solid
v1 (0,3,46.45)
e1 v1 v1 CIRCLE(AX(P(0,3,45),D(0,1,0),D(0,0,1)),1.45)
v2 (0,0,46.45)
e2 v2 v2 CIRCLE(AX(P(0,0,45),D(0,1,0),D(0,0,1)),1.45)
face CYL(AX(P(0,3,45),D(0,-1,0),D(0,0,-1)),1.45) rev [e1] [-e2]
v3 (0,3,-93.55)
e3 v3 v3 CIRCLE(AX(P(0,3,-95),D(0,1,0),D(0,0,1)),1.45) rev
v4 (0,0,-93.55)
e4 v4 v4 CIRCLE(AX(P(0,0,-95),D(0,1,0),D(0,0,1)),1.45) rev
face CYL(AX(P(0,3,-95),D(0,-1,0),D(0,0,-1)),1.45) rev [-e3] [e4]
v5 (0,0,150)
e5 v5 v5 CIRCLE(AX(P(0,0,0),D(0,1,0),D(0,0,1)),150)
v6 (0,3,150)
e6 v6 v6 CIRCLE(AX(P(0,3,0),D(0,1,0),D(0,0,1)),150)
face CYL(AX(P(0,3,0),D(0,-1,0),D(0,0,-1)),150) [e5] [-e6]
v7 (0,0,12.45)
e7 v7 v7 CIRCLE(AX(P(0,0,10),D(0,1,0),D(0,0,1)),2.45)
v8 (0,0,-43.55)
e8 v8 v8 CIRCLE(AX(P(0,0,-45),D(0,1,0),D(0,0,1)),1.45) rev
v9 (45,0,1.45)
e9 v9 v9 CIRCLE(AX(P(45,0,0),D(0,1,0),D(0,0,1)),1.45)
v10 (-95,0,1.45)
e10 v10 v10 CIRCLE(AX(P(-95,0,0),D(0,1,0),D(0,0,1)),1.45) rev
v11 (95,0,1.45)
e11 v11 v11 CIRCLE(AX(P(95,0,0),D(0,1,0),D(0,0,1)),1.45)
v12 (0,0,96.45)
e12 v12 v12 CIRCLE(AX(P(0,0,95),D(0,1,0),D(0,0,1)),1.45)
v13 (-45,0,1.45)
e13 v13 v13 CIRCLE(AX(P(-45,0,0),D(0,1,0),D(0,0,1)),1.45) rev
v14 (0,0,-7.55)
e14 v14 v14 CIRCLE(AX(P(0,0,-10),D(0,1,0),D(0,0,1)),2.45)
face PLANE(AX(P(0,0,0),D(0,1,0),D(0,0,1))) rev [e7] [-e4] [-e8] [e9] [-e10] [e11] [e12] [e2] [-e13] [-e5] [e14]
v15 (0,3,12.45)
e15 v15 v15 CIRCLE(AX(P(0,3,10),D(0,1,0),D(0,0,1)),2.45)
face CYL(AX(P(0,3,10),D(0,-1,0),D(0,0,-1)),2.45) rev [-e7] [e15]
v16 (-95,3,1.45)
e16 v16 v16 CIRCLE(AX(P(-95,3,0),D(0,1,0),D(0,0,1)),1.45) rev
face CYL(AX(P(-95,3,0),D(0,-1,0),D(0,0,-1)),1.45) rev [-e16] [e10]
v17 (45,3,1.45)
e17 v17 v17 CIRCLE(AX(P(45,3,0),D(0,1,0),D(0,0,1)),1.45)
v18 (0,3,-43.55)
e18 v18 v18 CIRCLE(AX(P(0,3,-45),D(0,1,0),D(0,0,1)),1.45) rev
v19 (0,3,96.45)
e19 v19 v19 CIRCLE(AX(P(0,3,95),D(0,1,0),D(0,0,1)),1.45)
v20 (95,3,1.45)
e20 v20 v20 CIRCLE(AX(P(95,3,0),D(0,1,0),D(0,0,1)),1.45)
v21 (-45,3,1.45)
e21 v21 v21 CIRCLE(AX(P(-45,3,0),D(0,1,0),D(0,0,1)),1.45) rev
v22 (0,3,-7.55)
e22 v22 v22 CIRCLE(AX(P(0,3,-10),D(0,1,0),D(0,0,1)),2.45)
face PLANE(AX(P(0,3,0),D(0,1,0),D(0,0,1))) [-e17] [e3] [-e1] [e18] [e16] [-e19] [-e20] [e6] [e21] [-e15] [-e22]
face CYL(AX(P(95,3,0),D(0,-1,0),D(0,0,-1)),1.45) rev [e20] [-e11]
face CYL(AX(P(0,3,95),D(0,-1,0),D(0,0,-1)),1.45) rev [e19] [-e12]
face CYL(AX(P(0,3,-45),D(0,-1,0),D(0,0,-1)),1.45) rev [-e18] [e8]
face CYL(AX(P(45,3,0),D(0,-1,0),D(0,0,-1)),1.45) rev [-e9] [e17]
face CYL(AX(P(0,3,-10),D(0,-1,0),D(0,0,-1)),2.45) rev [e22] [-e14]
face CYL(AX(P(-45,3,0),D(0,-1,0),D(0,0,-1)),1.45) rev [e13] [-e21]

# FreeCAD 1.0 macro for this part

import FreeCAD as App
import Part
import Sketcher
from FreeCAD import Vector
Q = App.Units.Quantity

doc = App.newDocument("Part")
body = doc.addObject("PartDesign::Body", "Body")

sketch1 = doc.addObject("Sketcher::SketchObject", "Sketch")
body.addObject(sketch1)
sketch1.AttachmentSupport = (doc.XZ_Plane, [""])
sketch1.MapMode = "FlatFace"
sketch1.addGeometry(Part.Circle(Vector(0, 0, 0), Vector(0, 0, 1), 150), False)
sketch1.addGeometry(Part.Circle(Vector(0, -95, 0), Vector(0, 0, 1), 1.45), False)
sketch1.addGeometry(Part.Circle(Vector(0, -45, 0), Vector(0, 0, 1), 1.45), False)
sketch1.addGeometry(Part.Circle(Vector(-95, 0, 0), Vector(0, 0, 1), 1.45), False)
sketch1.addGeometry(Part.Circle(Vector(-45, 0, 0), Vector(0, 0, 1), 1.45), False)
sketch1.addGeometry(Part.Circle(Vector(0, -10, 0), Vector(0, 0, 1), 2.45), False)
sketch1.addGeometry(Part.Circle(Vector(45, 0, 0), Vector(0, 0, 1), 1.45), False)
sketch1.addGeometry(Part.Circle(Vector(95, 0, 0), Vector(0, 0, 1), 1.45), False)
sketch1.addGeometry(Part.Circle(Vector(0, 10, 0), Vector(0, 0, 1), 2.45), False)
sketch1.addGeometry(Part.Circle(Vector(0, 45, 0), Vector(0, 0, 1), 1.45), False)
sketch1.addGeometry(Part.Circle(Vector(0, 95, 0), Vector(0, 0, 1), 1.45), False)
sketch1.addConstraint(Sketcher.Constraint("Coincident", 0, 3, -1, 1))
sketch1.addConstraint(Sketcher.Constraint("Equal", 1, 2))
sketch1.addConstraint(Sketcher.Constraint("Equal", 2, 3))
sketch1.addConstraint(Sketcher.Constraint("Equal", 3, 4))
sketch1.addConstraint(Sketcher.Constraint("Equal", 4, 6))
sketch1.addConstraint(Sketcher.Constraint("Equal", 6, 7))
sketch1.addConstraint(Sketcher.Constraint("Equal", 5, 8))
sketch1.addConstraint(Sketcher.Constraint("Equal", 7, 9))
sketch1.addConstraint(Sketcher.Constraint("Equal", 9, 10))
sketch1.addConstraint(Sketcher.Constraint("Symmetric", 4, 3, 6, 3, -1, 1))
sketch1.addConstraint(Sketcher.Constraint("Symmetric", 3, 3, 7, 3, -1, 1))
sketch1.addConstraint(Sketcher.Constraint("Symmetric", 5, 3, 8, 3, -1, 1))
sketch1.addConstraint(Sketcher.Constraint("Symmetric", 2, 3, 9, 3, -1, 1))
sketch1.addConstraint(Sketcher.Constraint("Symmetric", 1, 3, 10, 3, -1, 1))
sketch1.addConstraint(Sketcher.Constraint("PointOnObject", 1, 3, -2))
sketch1.addConstraint(Sketcher.Constraint("PointOnObject", 2, 3, -2))
sketch1.addConstraint(Sketcher.Constraint("PointOnObject", 3, 3, -1))
sketch1.addConstraint(Sketcher.Constraint("PointOnObject", 4, 3, -1))
sketch1.addConstraint(Sketcher.Constraint("PointOnObject", 5, 3, -2))
sketch1.addConstraint(Sketcher.Constraint("Diameter", 0, Q("300 mm")))
sketch1.addConstraint(Sketcher.Constraint("Diameter", 1, Q("2.9 mm")))
sketch1.addConstraint(Sketcher.Constraint("Diameter", 5, Q("4.9 mm")))
sketch1.addConstraint(Sketcher.Constraint("DistanceY", 1, 3, -1, 1, Q("95 mm")))
sketch1.addConstraint(Sketcher.Constraint("DistanceY", 2, 3, -1, 1, Q("45 mm")))
sketch1.addConstraint(Sketcher.Constraint("DistanceX", 3, 3, -1, 1, Q("95 mm")))
sketch1.addConstraint(Sketcher.Constraint("DistanceX", 4, 3, -1, 1, Q("45 mm")))
sketch1.addConstraint(Sketcher.Constraint("DistanceY", 5, 3, -1, 1, Q("10 mm")))
pad1 = doc.addObject("PartDesign::Pad", "Pad")
body.addObject(pad1)
pad1.Profile = sketch1
pad1.Length = 3
pad1.Reversed = True

doc.recompute()
